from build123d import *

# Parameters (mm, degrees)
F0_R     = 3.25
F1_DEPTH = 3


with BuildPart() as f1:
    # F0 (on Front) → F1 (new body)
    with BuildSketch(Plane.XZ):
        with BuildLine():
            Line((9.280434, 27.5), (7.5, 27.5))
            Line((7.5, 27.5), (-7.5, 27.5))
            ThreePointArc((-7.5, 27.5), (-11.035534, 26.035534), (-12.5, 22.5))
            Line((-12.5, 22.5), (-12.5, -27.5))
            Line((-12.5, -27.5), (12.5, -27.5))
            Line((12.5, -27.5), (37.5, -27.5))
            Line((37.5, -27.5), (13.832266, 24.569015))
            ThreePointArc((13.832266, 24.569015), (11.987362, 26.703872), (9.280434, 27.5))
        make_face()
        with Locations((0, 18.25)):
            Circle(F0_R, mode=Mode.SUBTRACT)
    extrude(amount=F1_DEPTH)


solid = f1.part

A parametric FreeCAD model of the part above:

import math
import FreeCAD as App
import Part
import Sketcher

V = App.Vector
Q = App.Units.Quantity

doc = App.newDocument("Part")
body = doc.addObject("PartDesign::Body", "Body")

sketch1 = body.newObject("Sketcher::SketchObject", "Sketch")
sketch1.AttachmentSupport = (doc.getObject("XZ_Plane"), [""])
sketch1.MapMode = "FlatFace"
sketch1.addGeometry(Part.LineSegment(V(9.3, 27.5, 0), V(-7.5, 27.5, 0)), False)
sketch1.addGeometry(Part.ArcOfCircle(Part.Circle(V(-7.5, 22.5, 0), V(0, 0, 1), 5), math.radians(90), math.radians(180)), False)
sketch1.addGeometry(Part.LineSegment(V(-12.5, 22.5, 0), V(-12.5, -27.5, 0)), False)
sketch1.addGeometry(Part.LineSegment(V(-12.5, -27.5, 0), V(37.5, -27.5, 0)), False)
sketch1.addGeometry(Part.LineSegment(V(37.5, -27.5, 0), V(13.8, 24.6, 0)), False)
sketch1.addGeometry(Part.ArcOfCircle(Part.Circle(V(9.3, 22.5, 0), V(0, 0, 1), 5), math.radians(24), math.radians(90)), False)
sketch1.addGeometry(Part.Circle(V(0, 18.2, 0), V(0, 0, 1), 3.2), False)
sketch1.addConstraint(Sketcher.Constraint("Tangent", 0, 2, 1, 1))
sketch1.addConstraint(Sketcher.Constraint("Tangent", 1, 2, 2, 1))
sketch1.addConstraint(Sketcher.Constraint("Coincident", 2, 2, 3, 1))
sketch1.addConstraint(Sketcher.Constraint("Coincident", 3, 2, 4, 1))
sketch1.addConstraint(Sketcher.Constraint("Tangent", 4, 2, 5, 1))
sketch1.addConstraint(Sketcher.Constraint("Tangent", 5, 2, 0, 1))
sketch1.addConstraint(Sketcher.Constraint("Horizontal", 0))
sketch1.addConstraint(Sketcher.Constraint("Vertical", 2))
sketch1.addConstraint(Sketcher.Constraint("Horizontal", 3))
sketch1.addConstraint(Sketcher.Constraint("Equal", 1, 5))
sketch1.addConstraint(Sketcher.Constraint("PointOnObject", 6, 3, -2))
sketch1.addConstraint(Sketcher.Constraint("Equal", 3, 2))
sketch1.addConstraint(Sketcher.Constraint("Radius", 1, Q("5 mm")))
sketch1.addConstraint(Sketcher.Constraint("Diameter", 6, Q("6.5 mm")))
sketch1.addConstraint(Sketcher.Constraint("DistanceX", 3, 1, 3, 2, Q("50 mm")))
sketch1.addConstraint(Sketcher.Constraint("DistanceX", 1, 3, -1, 1, Q("7.5 mm")))
sketch1.addConstraint(Sketcher.Constraint("DistanceY", -1, 1, 1, 3, Q("22.5 mm")))
sketch1.addConstraint(Sketcher.Constraint("DistanceY", -1, 1, 6, 3, Q("18.25 mm")))
sketch1.addConstraint(Sketcher.Constraint("DistanceX", 0, 2, 0, 1, Q("16.780434 mm")))
pad1 = body.newObject("PartDesign::Pad", "Pad")
pad1.Profile = sketch1
pad1.Length = 3

doc.recompute()
